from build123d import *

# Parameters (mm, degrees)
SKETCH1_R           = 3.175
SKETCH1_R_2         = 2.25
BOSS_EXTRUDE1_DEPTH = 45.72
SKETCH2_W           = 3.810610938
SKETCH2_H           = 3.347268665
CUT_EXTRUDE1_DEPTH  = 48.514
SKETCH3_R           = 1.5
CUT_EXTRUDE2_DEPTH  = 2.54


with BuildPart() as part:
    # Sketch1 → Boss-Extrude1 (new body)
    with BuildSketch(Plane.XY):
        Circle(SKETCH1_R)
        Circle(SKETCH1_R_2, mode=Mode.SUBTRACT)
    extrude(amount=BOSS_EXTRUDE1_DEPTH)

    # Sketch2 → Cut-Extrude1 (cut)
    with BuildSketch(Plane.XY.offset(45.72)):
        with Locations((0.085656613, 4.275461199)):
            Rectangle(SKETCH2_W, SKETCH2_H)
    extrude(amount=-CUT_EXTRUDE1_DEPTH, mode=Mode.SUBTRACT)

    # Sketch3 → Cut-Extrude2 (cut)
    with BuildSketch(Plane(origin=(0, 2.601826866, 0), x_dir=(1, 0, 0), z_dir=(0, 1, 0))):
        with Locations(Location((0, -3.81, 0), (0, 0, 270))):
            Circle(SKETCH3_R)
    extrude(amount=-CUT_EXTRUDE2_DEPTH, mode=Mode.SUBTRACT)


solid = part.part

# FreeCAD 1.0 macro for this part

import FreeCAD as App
import Part
import Sketcher
from FreeCAD import Vector
Q = App.Units.Quantity

doc = App.newDocument("Part")
body = doc.addObject("PartDesign::Body", "Body")

sketch1 = body.newObject("Sketcher::SketchObject", "Sketch")
sketch1.AttachmentSupport = (doc.getObject("XY_Plane"), [""])
sketch1.MapMode = "FlatFace"
sketch1.addGeometry([
    Part.Circle(Vector(0, 0, 0), Vector(0, 0, 1), 3.2),
    Part.Circle(Vector(0, 0, 0), Vector(0, 0, 1), 2.2),
], False)
sketch1.addConstraint([
    Sketcher.Constraint("Coincident", 0, 3, -1, 1),
    Sketcher.Constraint("Coincident", 1, 3, -1, 1),
    Sketcher.Constraint("Diameter", 0, Q("0.25 in")),
    Sketcher.Constraint("Diameter", 1, 4.5),
])
pad1 = body.newObject("PartDesign::Pad", "Pad")
pad1.Profile = sketch1
pad1.Length = Q("1.8 in")

sketch2 = body.newObject("Sketcher::SketchObject", "Sketch001")
sketch2.AttachmentSupport = (doc.getObject("XY_Plane"), [""])
sketch2.MapMode = "FlatFace"
sketch2.AttachmentOffset = App.Placement(Vector(0, 0, 1.8 * 25.4), App.Rotation())
sketch2.addGeometry([
    Part.LineSegment(Vector(-1.8, 5.9, 0), Vector(-1.8, 2.6, 0)),
    Part.LineSegment(Vector(-1.8, 2.6, 0), Vector(2, 2.6, 0)),
    Part.LineSegment(Vector(2, 2.6, 0), Vector(2, 5.9, 0)),
    Part.LineSegment(Vector(2, 5.9, 0), Vector(-1.8, 5.9, 0)),
], False)
sketch2.addConstraint([
    Sketcher.Constraint("Coincident", 0, 2, 1, 1),
    Sketcher.Constraint("Coincident", 1, 2, 2, 1),
    Sketcher.Constraint("Coincident", 2, 2, 3, 1),
    Sketcher.Constraint("Coincident", 3, 2, 0, 1),
    Sketcher.Constraint("Vertical", 0),
    Sketcher.Constraint("Horizontal", 1),
    Sketcher.Constraint("Vertical", 2),
    Sketcher.Constraint("Horizontal", 3),
    Sketcher.Constraint("DistanceX", 1, 1, 1, 2, 3.810611),
    Sketcher.Constraint("DistanceY", 0, 2, 0, 1, 3.347269),
    Sketcher.Constraint("DistanceX", 0, 2, -1, 1, 1.819649),
    Sketcher.Constraint("DistanceY", -1, 1, 0, 2, 2.601827),
])
pocket1 = body.newObject("PartDesign::Pocket", "Pocket")
pocket1.Profile = sketch2
pocket1.Length = Q("1.91 in")

sketch3 = body.newObject("Sketcher::SketchObject", "Sketch002")
sketch3.AttachmentSupport = (doc.getObject("XZ_Plane"), [""])
sketch3.MapMode = "FlatFace"
sketch3.AttachmentOffset = App.Placement(Vector(0, 0, -2.601827), App.Rotation())
sketch3.addGeometry(Part.Circle(Vector(0, 3.8, 0), Vector(0, 0, 1), 1.5), False)
sketch3.addConstraint([
    Sketcher.Constraint("PointOnObject", 0, 3, -2),
    Sketcher.Constraint("Diameter", 0, 3.0),
    Sketcher.Constraint("DistanceY", -1, 1, 0, 3, Q("0.15 in")),
])
pocket2 = body.newObject("PartDesign::Pocket", "Pocket001")
pocket2.Profile = sketch3
pocket2.Length = Q("0.1 in")
pocket2.Reversed = True

doc.recompute()
